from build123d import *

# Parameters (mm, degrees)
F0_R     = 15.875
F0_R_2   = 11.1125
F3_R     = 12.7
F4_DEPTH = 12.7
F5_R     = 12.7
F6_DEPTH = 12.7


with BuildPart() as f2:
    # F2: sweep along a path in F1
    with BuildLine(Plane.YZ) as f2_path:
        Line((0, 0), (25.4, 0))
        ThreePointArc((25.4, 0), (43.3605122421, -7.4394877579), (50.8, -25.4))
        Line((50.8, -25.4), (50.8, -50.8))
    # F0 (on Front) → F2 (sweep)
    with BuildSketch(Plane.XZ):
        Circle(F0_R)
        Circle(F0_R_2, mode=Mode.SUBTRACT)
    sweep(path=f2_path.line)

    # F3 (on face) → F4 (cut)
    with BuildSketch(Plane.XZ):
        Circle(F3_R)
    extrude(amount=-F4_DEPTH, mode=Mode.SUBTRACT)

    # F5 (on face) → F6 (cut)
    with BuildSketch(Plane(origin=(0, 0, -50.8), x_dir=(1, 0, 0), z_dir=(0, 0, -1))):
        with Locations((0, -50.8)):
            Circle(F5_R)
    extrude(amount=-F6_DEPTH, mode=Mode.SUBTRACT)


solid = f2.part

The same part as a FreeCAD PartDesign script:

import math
import FreeCAD as App
import Part
import Sketcher

V = App.Vector
Q = App.Units.Quantity

doc = App.newDocument("Part")
body = doc.addObject("PartDesign::Body", "Body")

# Sketch on XZ plane
sketch1 = body.newObject("Sketcher::SketchObject", "Sketch")
sketch1.AttachmentSupport = (doc.getObject("XZ_Plane"), [""])
sketch1.MapMode = "FlatFace"
sketch1.addGeometry(Part.Circle(V(0, 0, 0), V(0, 0, 1), 16), False)
sketch1.addGeometry(Part.Circle(V(0, 0, 0), V(0, 0, 1), 11), False)
sketch1.addConstraint(Sketcher.Constraint("Coincident", 0, 3, -1, 1))
sketch1.addConstraint(Sketcher.Constraint("Coincident", 1, 3, -1, 1))
sketch1.addConstraint(Sketcher.Constraint("Diameter", 0, Q("1.25 in")))
sketch1.addConstraint(Sketcher.Constraint("Diameter", 1, Q("0.875 in")))

# Sketch on YZ plane
sketch2 = body.newObject("Sketcher::SketchObject", "Sketch001")
sketch2.AttachmentSupport = (doc.getObject("YZ_Plane"), [""])
sketch2.MapMode = "FlatFace"
sketch2.addGeometry(Part.LineSegment(V(0, 0, 0), V(25, 0, 0)), False)
sketch2.addGeometry(Part.ArcOfCircle(Part.Circle(V(25, -25, 0), V(0, 0, 1), 25), math.radians(0), math.radians(90)), False)
sketch2.addGeometry(Part.LineSegment(V(51, -25, 0), V(51, -51, 0)), False)
sketch2.addConstraint(Sketcher.Constraint("Tangent", 0, 2, 1, 2))
sketch2.addConstraint(Sketcher.Constraint("Tangent", 1, 1, 2, 1))
sketch2.addConstraint(Sketcher.Constraint("Horizontal", 0))
sketch2.addConstraint(Sketcher.Constraint("Vertical", 2))
sketch2.addConstraint(Sketcher.Constraint("Coincident", 0, 1, -1, 1))
sketch2.addConstraint(Sketcher.Constraint("Equal", 0, 2))
sketch2.addConstraint(Sketcher.Constraint("Radius", 1, Q("1 in")))
sketch2.addConstraint(Sketcher.Constraint("DistanceX", 0, 1, 0, 2, Q("1 in")))
doc.recompute()

additivepipe = body.newObject("PartDesign::AdditivePipe", "AdditivePipe")
additivepipe.Profile = sketch1
additivepipe.Spine = (sketch2, ["Edge1", "Edge2", "Edge3"])

# Sketch on XZ plane
sketch3 = body.newObject("Sketcher::SketchObject", "Sketch002")
sketch3.AttachmentSupport = (doc.getObject("XZ_Plane"), [""])
sketch3.MapMode = "FlatFace"
sketch3.addGeometry(Part.Circle(V(0, 0, 0), V(0, 0, 1), 13), False)
sketch3.addConstraint(Sketcher.Constraint("Coincident", 0, 3, -1, 1))
sketch3.addConstraint(Sketcher.Constraint("Diameter", 0, Q("1 in")))
pocket1 = body.newObject("PartDesign::Pocket", "Pocket")
pocket1.Profile = sketch3
pocket1.Length = Q("0.5 in")

# Sketch on XY plane
sketch4 = body.newObject("Sketcher::SketchObject", "Sketch003")
sketch4.AttachmentSupport = (doc.getObject("XY_Plane"), [""])
sketch4.MapMode = "FlatFace"
sketch4.AttachmentOffset = App.Placement(V(0, 0, -2 * 25.4), App.Rotation())
sketch4.addGeometry(Part.Circle(V(0, 51, 0), V(0, 0, 1), 13), False)
sketch4.addConstraint(Sketcher.Constraint("PointOnObject", 0, 3, -2))
sketch4.addConstraint(Sketcher.Constraint("Diameter", 0, Q("1 in")))
sketch4.addConstraint(Sketcher.Constraint("DistanceY", -1, 1, 0, 3, Q("2 in")))
pocket2 = body.newObject("PartDesign::Pocket", "Pocket001")
pocket2.Profile = sketch4
pocket2.Length = Q("0.5 in")
pocket2.Reversed = True

doc.recompute()
